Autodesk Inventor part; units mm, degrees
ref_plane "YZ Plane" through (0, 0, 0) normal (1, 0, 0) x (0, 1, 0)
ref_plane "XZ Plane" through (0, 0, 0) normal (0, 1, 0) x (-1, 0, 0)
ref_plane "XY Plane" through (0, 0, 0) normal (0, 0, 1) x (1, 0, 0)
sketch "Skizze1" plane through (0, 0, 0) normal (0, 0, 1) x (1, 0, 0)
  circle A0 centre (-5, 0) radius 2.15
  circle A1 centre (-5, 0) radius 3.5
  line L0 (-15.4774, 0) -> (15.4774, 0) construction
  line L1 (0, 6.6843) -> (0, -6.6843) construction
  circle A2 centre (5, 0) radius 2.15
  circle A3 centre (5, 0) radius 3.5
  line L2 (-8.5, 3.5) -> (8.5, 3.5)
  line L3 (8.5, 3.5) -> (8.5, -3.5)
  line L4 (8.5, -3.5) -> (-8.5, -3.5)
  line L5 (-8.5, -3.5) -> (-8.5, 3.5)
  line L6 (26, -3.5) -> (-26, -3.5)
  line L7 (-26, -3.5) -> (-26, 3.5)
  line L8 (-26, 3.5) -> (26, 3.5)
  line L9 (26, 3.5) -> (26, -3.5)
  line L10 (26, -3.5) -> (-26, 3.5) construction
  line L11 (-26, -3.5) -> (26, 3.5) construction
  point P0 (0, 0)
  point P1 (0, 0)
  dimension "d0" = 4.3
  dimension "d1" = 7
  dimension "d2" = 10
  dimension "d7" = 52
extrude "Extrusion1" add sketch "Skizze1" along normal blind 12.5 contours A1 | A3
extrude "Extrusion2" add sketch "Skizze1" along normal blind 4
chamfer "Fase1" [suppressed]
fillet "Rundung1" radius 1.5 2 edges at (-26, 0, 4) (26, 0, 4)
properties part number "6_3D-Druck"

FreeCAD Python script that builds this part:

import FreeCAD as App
import Part
import Sketcher
from FreeCAD import Vector


def edges_at(feature, points):
    """Names of the edges that pass closest to the given points."""
    edges = feature.Shape.Edges
    near = lambda p: min(range(len(edges)), key=lambda i: edges[i].distToShape(Part.Vertex(*p))[0])
    return sorted({f"Edge{near(p) + 1}" for p in points})


def add_polygon(sketch, points):
    """Adds a closed chain of lines whose ends are joined by coincident constraints."""
    first, n = sketch.GeometryCount, len(points)
    for a, b in zip(points, points[1:] + points[:1]):
        sketch.addGeometry(Part.LineSegment(App.Vector(*a, 0), App.Vector(*b, 0)), False)
    for i in range(n):
        sketch.addConstraint(Sketcher.Constraint("Coincident", first + i, 2, first + (i + 1) % n, 1))

doc = App.newDocument("Part")
params = doc.addObject("Spreadsheet::Sheet", "Params")
for row, (alias, value) in enumerate([
    ("sketch1_diameter", "7 mm"),
    ("sketch1_diameter2", "4.3 mm"),
    ("pad1_length", "12.5 mm"),
    ("sketch2_diameter", "4.3 mm"),
    ("sketch2_width", "52 mm"),
    ("sketch2_height", "7 mm"),
    ("pad2_length", "4 mm"),
    ("fillet_radius", "1.5 mm"),
], start=1):
    params.set(f"A{row}", alias)
    params.set(f"B{row}", "=" + value)
    params.setAlias(f"B{row}", alias)

body = doc.addObject("PartDesign::Body", "Body")
body.AllowCompound = True

# Sketch on XY plane
sketch1 = doc.addObject("Sketcher::SketchObject", "Sketch")
body.addObject(sketch1)
sketch1.AttachmentSupport = (doc.XY_Plane, [""])
sketch1.MapMode = "FlatFace"
sketch1.addGeometry([
    Part.Circle(Vector(-5, 0, 0), Vector(0, 0, 1), 3.5),
    Part.Circle(Vector(-5, 0, 0), Vector(0, 0, 1), 2.1),
    Part.Circle(Vector(5, 0, 0), Vector(0, 0, 1), 3.5),
    Part.Circle(Vector(5, 0, 0), Vector(0, 0, 1), 2.1),
], False)
sketch1.addConstraint([
    Sketcher.Constraint("Coincident", 1, 3, 0, 3),
    Sketcher.Constraint("Coincident", 3, 3, 2, 3),
    Sketcher.Constraint("Equal", 0, 2),
    Sketcher.Constraint("Equal", 1, 3),
    Sketcher.Constraint("Symmetric", 0, 3, 2, 3, -1, 1),
    Sketcher.Constraint("PointOnObject", 0, 3, -1),
    Sketcher.Constraint("Diameter", 0, 7.0),
    Sketcher.Constraint("Diameter", 1, 4.3),
    Sketcher.Constraint("DistanceX", 0, 3, 2, 3, 10.0),
])
sketch1.setExpression("Constraints[6]", "Params.sketch1_diameter")
sketch1.setExpression("Constraints[7]", "Params.sketch1_diameter2")
pad1 = doc.addObject("PartDesign::Pad", "Pad")
body.addObject(pad1)
pad1.Profile = sketch1
pad1.setExpression("Length", "Params.pad1_length")

# Sketch on XY plane
sketch2 = doc.addObject("Sketcher::SketchObject", "Sketch001")
body.addObject(sketch2)
sketch2.AttachmentSupport = (doc.XY_Plane, [""])
sketch2.MapMode = "FlatFace"
add_polygon(sketch2, [(26, -3.5), (26, 3.5), (-26, 3.5), (-26, -3.5)])  # lines 0-3
sketch2.addGeometry(Part.Circle(Vector(-5, 0, 0), Vector(0, 0, 1), 2.1), False)  # 4
sketch2.addGeometry(Part.Circle(Vector(5, 0, 0), Vector(0, 0, 1), 2.1), False)  # 5
sketch2.addConstraint([
    Sketcher.Constraint("Vertical", 0),
    Sketcher.Constraint("Horizontal", 1),
    Sketcher.Constraint("Vertical", 2),
    Sketcher.Constraint("Horizontal", 3),
    Sketcher.Constraint("Equal", 4, 5),
    Sketcher.Constraint("Symmetric", 4, 3, 5, 3, -1, 1),
    Sketcher.Constraint("Symmetric", 0, 2, 2, 2, -1, 1),
    Sketcher.Constraint("PointOnObject", 4, 3, -1),
    Sketcher.Constraint("Diameter", 4, 4.3),
    Sketcher.Constraint("DistanceX", 1, 2, 1, 1, 52.0),
    Sketcher.Constraint("DistanceY", 0, 1, 0, 2, 7.0),
    Sketcher.Constraint("DistanceX", 4, 3, 5, 3, 10.0),
])
sketch2.setExpression("Constraints[12]", "Params.sketch2_diameter")
sketch2.setExpression("Constraints[13]", "Params.sketch2_width")
sketch2.setExpression("Constraints[14]", "Params.sketch2_height")
pad2 = doc.addObject("PartDesign::Pad", "Pad001")
body.addObject(pad2)
pad2.Profile = sketch2
pad2.setExpression("Length", "Params.pad2_length")
doc.recompute()

fillet = doc.addObject("PartDesign::Fillet", "Fillet")
body.addObject(fillet)
fillet.Base = (pad2, edges_at(pad2, [(-26, 0, 4), (26, 0, 4)]))
fillet.setExpression("Radius", "Params.fillet_radius")

doc.recompute()
